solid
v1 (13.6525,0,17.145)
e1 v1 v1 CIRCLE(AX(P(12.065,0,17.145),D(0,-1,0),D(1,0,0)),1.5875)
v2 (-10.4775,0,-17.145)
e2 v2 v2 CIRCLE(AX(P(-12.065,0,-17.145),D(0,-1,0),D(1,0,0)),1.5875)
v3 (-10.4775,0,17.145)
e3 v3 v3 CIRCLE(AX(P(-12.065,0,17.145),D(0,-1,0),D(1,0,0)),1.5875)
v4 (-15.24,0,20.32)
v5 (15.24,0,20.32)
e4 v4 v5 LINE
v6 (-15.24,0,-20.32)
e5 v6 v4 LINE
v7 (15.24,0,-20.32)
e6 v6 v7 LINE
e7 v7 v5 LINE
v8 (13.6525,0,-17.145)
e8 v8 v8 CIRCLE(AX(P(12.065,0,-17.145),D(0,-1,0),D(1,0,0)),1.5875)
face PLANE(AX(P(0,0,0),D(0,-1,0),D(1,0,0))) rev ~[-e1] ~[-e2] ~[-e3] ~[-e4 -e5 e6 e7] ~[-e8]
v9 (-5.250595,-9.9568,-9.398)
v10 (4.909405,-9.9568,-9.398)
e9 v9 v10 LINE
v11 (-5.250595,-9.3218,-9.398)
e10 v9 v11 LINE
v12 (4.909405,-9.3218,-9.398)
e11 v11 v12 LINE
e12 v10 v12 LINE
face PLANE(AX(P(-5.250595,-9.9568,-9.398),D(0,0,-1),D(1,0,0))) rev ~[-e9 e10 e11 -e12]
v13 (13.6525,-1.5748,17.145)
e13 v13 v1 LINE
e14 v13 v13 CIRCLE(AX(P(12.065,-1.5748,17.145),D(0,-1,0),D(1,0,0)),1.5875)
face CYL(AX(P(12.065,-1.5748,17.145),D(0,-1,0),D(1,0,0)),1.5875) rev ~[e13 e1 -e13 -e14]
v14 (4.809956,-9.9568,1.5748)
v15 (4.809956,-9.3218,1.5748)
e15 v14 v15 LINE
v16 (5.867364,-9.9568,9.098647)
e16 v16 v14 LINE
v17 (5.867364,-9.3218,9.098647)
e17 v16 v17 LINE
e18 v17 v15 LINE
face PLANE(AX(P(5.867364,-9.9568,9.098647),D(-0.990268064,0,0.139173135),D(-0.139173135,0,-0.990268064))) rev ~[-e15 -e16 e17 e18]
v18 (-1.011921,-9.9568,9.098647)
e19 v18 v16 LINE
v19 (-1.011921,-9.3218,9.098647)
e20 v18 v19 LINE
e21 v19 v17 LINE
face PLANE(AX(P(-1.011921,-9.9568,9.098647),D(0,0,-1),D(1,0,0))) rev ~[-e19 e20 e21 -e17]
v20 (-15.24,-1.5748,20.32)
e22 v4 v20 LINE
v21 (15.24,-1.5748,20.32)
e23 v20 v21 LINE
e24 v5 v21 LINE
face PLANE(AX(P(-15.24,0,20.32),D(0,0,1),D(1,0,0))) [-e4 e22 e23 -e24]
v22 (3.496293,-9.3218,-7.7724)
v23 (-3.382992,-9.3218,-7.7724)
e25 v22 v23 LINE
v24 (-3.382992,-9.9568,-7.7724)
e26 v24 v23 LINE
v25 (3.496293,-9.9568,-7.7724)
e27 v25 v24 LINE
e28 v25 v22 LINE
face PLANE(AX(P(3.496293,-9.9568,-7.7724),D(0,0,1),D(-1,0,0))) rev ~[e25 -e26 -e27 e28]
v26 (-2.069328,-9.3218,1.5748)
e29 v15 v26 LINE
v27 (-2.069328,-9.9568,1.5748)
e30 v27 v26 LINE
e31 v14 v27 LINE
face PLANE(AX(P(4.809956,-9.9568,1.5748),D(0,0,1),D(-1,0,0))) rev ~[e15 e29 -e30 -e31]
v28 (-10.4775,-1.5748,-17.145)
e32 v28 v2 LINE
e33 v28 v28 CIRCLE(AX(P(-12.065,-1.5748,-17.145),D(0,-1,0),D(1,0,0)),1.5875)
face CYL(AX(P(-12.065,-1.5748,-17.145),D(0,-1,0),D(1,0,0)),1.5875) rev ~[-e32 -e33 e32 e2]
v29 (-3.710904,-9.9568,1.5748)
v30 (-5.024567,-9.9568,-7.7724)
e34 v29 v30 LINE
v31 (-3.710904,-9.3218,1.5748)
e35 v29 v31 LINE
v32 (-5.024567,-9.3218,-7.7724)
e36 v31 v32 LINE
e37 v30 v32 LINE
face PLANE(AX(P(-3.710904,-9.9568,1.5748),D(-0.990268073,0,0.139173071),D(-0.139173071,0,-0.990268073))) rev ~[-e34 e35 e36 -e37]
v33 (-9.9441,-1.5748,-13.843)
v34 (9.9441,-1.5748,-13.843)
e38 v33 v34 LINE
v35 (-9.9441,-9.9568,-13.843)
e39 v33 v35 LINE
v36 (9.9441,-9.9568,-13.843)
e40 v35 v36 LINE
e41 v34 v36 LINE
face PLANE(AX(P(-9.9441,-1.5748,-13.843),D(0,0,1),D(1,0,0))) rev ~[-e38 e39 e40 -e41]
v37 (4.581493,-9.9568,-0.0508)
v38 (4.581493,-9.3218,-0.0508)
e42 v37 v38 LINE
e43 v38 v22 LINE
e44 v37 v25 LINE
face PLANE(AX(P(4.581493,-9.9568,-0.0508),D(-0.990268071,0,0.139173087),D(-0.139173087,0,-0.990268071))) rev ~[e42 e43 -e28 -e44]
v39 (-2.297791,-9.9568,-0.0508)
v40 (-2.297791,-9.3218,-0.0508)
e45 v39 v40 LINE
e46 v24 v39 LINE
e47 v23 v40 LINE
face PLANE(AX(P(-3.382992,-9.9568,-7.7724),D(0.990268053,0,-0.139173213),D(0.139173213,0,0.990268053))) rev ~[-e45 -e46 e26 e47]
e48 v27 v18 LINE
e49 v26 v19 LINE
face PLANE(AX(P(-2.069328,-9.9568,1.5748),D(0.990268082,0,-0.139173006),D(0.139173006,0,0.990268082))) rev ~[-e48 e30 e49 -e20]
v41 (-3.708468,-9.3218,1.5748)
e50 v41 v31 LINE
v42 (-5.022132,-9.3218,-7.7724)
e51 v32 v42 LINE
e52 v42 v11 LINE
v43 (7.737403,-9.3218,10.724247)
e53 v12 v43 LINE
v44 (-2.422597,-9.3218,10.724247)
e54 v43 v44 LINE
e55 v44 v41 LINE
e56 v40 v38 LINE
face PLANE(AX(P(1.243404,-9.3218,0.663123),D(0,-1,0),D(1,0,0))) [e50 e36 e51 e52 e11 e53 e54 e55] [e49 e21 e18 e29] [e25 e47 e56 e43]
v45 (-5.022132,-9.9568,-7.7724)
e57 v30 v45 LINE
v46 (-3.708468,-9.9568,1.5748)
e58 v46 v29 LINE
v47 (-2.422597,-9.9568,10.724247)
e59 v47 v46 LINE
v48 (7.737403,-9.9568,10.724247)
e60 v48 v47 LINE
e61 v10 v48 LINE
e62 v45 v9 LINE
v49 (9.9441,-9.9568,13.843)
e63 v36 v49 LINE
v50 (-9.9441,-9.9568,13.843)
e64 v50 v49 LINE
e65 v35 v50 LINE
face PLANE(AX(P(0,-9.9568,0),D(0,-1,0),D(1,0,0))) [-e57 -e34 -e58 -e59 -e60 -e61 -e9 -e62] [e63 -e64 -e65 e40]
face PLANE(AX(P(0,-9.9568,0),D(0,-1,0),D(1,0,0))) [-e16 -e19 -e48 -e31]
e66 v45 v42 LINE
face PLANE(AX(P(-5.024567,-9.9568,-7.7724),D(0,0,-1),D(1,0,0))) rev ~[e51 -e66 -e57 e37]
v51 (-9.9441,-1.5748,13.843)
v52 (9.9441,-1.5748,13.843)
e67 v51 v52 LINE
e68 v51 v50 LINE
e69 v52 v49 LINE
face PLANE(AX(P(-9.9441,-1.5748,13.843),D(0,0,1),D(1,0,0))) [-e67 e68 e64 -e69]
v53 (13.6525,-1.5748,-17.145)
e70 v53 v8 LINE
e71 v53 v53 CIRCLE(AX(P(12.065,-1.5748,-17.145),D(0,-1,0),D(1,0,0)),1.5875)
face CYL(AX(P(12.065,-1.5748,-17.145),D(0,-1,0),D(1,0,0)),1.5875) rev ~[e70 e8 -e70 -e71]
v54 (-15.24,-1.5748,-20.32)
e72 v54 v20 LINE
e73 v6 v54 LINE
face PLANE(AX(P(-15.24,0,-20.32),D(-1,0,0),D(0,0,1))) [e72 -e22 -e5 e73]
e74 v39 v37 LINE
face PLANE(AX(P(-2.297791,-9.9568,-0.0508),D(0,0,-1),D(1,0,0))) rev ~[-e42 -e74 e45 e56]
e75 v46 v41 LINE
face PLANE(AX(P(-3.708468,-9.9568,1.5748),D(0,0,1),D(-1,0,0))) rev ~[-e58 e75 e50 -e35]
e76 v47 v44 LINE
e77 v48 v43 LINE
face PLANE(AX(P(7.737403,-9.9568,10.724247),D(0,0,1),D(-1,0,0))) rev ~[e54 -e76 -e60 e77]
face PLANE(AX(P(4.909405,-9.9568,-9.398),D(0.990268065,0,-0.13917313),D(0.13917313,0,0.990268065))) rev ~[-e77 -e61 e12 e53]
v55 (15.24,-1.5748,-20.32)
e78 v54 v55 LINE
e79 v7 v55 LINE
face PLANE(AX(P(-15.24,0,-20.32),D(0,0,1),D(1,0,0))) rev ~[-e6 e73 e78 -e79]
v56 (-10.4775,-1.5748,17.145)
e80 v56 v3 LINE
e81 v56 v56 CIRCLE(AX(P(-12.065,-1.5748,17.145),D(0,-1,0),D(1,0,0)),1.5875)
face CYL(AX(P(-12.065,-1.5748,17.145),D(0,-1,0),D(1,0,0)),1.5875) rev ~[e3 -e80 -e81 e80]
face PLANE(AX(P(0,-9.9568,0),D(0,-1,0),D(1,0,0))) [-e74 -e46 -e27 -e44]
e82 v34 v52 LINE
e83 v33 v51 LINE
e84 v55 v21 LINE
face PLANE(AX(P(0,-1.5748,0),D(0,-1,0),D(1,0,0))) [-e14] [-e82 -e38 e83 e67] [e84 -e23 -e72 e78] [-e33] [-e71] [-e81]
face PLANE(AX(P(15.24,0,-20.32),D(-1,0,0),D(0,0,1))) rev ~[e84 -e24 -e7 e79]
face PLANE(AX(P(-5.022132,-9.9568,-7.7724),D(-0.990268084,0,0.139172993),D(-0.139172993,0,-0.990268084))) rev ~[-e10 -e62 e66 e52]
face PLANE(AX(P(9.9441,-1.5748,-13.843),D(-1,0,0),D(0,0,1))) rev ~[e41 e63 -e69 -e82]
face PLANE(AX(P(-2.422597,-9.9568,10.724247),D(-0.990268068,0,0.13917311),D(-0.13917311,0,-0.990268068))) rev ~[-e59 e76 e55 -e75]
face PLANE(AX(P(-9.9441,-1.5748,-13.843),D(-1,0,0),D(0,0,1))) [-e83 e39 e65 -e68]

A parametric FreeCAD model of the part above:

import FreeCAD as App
import Part
import Sketcher
Q = App.Units.Quantity

doc = App.newDocument("Part")
body = doc.addObject("PartDesign::Body", "Body")

sketch1 = body.newObject("Sketcher::SketchObject", "Sketch")
sketch1.AttachmentSupport = (doc.getObject("XZ_Plane"), [""])
sketch1.MapMode = "FlatFace"
sketch1.addGeometry([
    Part.LineSegment(App.Vector(-15, 20, 0), App.Vector(-15, -20, 0)),
    Part.LineSegment(App.Vector(-15, -20, 0), App.Vector(15, -20, 0)),
    Part.LineSegment(App.Vector(15, -20, 0), App.Vector(15, 20, 0)),
    Part.LineSegment(App.Vector(15, 20, 0), App.Vector(-15, 20, 0)),
], False)
sketch1.addConstraint([
    Sketcher.Constraint("Coincident", 0, 2, 1, 1),
    Sketcher.Constraint("Coincident", 1, 2, 2, 1),
    Sketcher.Constraint("Coincident", 2, 2, 3, 1),
    Sketcher.Constraint("Coincident", 3, 2, 0, 1),
    Sketcher.Constraint("Vertical", 0),
    Sketcher.Constraint("Horizontal", 1),
    Sketcher.Constraint("Vertical", 2),
    Sketcher.Constraint("Horizontal", 3),
    Sketcher.Constraint("Symmetric", 0, 2, 2, 2, -1, 1),
    Sketcher.Constraint("DistanceX", 1, 1, 1, 2, Q("1.2 in")),
    Sketcher.Constraint("DistanceY", 0, 2, 0, 1, Q("1.6 in")),
])
pad1 = body.newObject("PartDesign::Pad", "Pad")
pad1.Profile = sketch1
pad1.Length = Q("0.062 in")

sketch2 = body.newObject("Sketcher::SketchObject", "Sketch001")
sketch2.AttachmentSupport = (doc.getObject("XZ_Plane"), [""])
sketch2.MapMode = "FlatFace"
sketch2.AttachmentOffset = App.Placement(App.Vector(0, 0, 0.062 * 25.4), App.Rotation())
sketch2.addGeometry([
    Part.Circle(App.Vector(-12.1, 17.1, 0), App.Vector(0, 0, 1), 1.6),
    Part.Circle(App.Vector(12.1, 17.1, 0), App.Vector(0, 0, 1), 1.6),
    Part.Circle(App.Vector(-12.1, -17.1, 0), App.Vector(0, 0, 1), 1.6),
    Part.Circle(App.Vector(12.1, -17.1, 0), App.Vector(0, 0, 1), 1.6),
], False)
sketch2.addConstraint([
    Sketcher.Constraint("Equal", 0, 1),
    Sketcher.Constraint("Equal", 1, 2),
    Sketcher.Constraint("Equal", 2, 3),
    Sketcher.Constraint("Symmetric", 1, 3, 2, 3, -1, 1),
    Sketcher.Constraint("Symmetric", 0, 3, 3, 3, -1, 1),
    Sketcher.Constraint("Symmetric", 0, 3, 1, 3, -2),
    Sketcher.Constraint("Diameter", 0, Q("0.125 in")),
    Sketcher.Constraint("DistanceX", 0, 3, 1, 3, Q("0.95 in")),
    Sketcher.Constraint("DistanceY", 2, 3, 0, 3, Q("1.35 in")),
])
pocket1 = body.newObject("PartDesign::Pocket", "Pocket")
pocket1.Profile = sketch2
pocket1.Type = "ThroughAll"

sketch3 = body.newObject("Sketcher::SketchObject", "Sketch002")
sketch3.AttachmentSupport = (doc.getObject("XZ_Plane"), [""])
sketch3.MapMode = "FlatFace"
sketch3.AttachmentOffset = App.Placement(App.Vector(0, 0, 0.062 * 25.4), App.Rotation())
sketch3.addGeometry([
    Part.LineSegment(App.Vector(-10, 14, 0), App.Vector(-10, -14, 0)),
    Part.LineSegment(App.Vector(-10, -14, 0), App.Vector(10, -14, 0)),
    Part.LineSegment(App.Vector(10, -14, 0), App.Vector(10, 14, 0)),
    Part.LineSegment(App.Vector(10, 14, 0), App.Vector(-10, 14, 0)),
], False)
sketch3.addConstraint([
    Sketcher.Constraint("Coincident", 0, 2, 1, 1),
    Sketcher.Constraint("Coincident", 1, 2, 2, 1),
    Sketcher.Constraint("Coincident", 2, 2, 3, 1),
    Sketcher.Constraint("Coincident", 3, 2, 0, 1),
    Sketcher.Constraint("Vertical", 0),
    Sketcher.Constraint("Horizontal", 1),
    Sketcher.Constraint("Vertical", 2),
    Sketcher.Constraint("Horizontal", 3),
    Sketcher.Constraint("Symmetric", 0, 2, 2, 2, -1, 1),
    Sketcher.Constraint("DistanceY", 0, 2, 0, 1, Q("1.09 in")),
    Sketcher.Constraint("DistanceX", 1, 1, 1, 2, Q("0.783 in")),
])
pad2 = body.newObject("PartDesign::Pad", "Pad001")
pad2.Profile = sketch3
pad2.Length = Q("0.33 in")

sketch4 = body.newObject("Sketcher::SketchObject", "Sketch003")
sketch4.AttachmentSupport = (doc.getObject("XZ_Plane"), [""])
sketch4.MapMode = "FlatFace"
sketch4.AttachmentOffset = App.Placement(App.Vector(0, 0, 0.392 * 25.4), App.Rotation())
sketch4.addGeometry([
    Part.LineSegment(App.Vector(-5.0221, -7.7724, 0), App.Vector(-5.2506, -9.398, 0)),
    Part.LineSegment(App.Vector(-5.2506, -9.398, 0), App.Vector(4.9094, -9.398, 0)),
    Part.LineSegment(App.Vector(4.9094, -9.398, 0), App.Vector(7.7374, 10.7242, 0)),
    Part.LineSegment(App.Vector(7.7374, 10.7242, 0), App.Vector(-2.4226, 10.7242, 0)),
    Part.LineSegment(App.Vector(-2.4226, 10.7242, 0), App.Vector(-3.7085, 1.5748, 0)),
    Part.LineSegment(App.Vector(-3.7085, 1.5748, 0), App.Vector(-3.7109, 1.5748, 0)),
    Part.LineSegment(App.Vector(-3.7109, 1.5748, 0), App.Vector(-5.0246, -7.7724, 0)),
    Part.LineSegment(App.Vector(-5.0246, -7.7724, 0), App.Vector(-5.0221, -7.7724, 0)),
    Part.LineSegment(App.Vector(-3.383, -7.7724, 0), App.Vector(-2.2978, -0.0508, 0)),
    Part.LineSegment(App.Vector(-2.2978, -0.0508, 0), App.Vector(4.5815, -0.0508, 0)),
    Part.LineSegment(App.Vector(4.5815, -0.0508, 0), App.Vector(3.4963, -7.7724, 0)),
    Part.LineSegment(App.Vector(3.4963, -7.7724, 0), App.Vector(-3.383, -7.7724, 0)),
    Part.LineSegment(App.Vector(5.8674, 9.0986, 0), App.Vector(4.81, 1.5748, 0)),
    Part.LineSegment(App.Vector(4.81, 1.5748, 0), App.Vector(-2.0693, 1.5748, 0)),
    Part.LineSegment(App.Vector(-2.0693, 1.5748, 0), App.Vector(-1.0119, 9.0986, 0)),
    Part.LineSegment(App.Vector(-1.0119, 9.0986, 0), App.Vector(5.8674, 9.0986, 0)),
], False)
sketch4.addConstraint([
    Sketcher.Constraint("Coincident", 0, 2, 1, 1),
    Sketcher.Constraint("Coincident", 1, 2, 2, 1),
    Sketcher.Constraint("Coincident", 2, 2, 3, 1),
    Sketcher.Constraint("Coincident", 3, 2, 4, 1),
    Sketcher.Constraint("Coincident", 4, 2, 5, 1),
    Sketcher.Constraint("Coincident", 5, 2, 6, 1),
    Sketcher.Constraint("Coincident", 6, 2, 7, 1),
    Sketcher.Constraint("Coincident", 7, 2, 0, 1),
    Sketcher.Constraint("Coincident", 8, 2, 9, 1),
    Sketcher.Constraint("Coincident", 9, 2, 10, 1),
    Sketcher.Constraint("Coincident", 10, 2, 11, 1),
    Sketcher.Constraint("Coincident", 11, 2, 8, 1),
    Sketcher.Constraint("Coincident", 12, 2, 13, 1),
    Sketcher.Constraint("Coincident", 13, 2, 14, 1),
    Sketcher.Constraint("Coincident", 14, 2, 15, 1),
    Sketcher.Constraint("Coincident", 15, 2, 12, 1),
    Sketcher.Constraint("Horizontal", 1),
    Sketcher.Constraint("Horizontal", 3),
    Sketcher.Constraint("Horizontal", 5),
    Sketcher.Constraint("Horizontal", 7),
    Sketcher.Constraint("Horizontal", 9),
    Sketcher.Constraint("Horizontal", 11),
    Sketcher.Constraint("Horizontal", 13),
    Sketcher.Constraint("Horizontal", 15),
    Sketcher.Constraint("Parallel", 0, 2),
    Sketcher.Constraint("Parallel", 2, 4),
    Sketcher.Constraint("Parallel", 4, 6),
    Sketcher.Constraint("Parallel", 6, 8),
    Sketcher.Constraint("Parallel", 8, 10),
    Sketcher.Constraint("Parallel", 10, 12),
    Sketcher.Constraint("Parallel", 12, 14),
    Sketcher.Constraint("Horizontal", 7, 2, 10, 2),
    Sketcher.Constraint("Horizontal", 5, 2, 12, 2),
    Sketcher.Constraint("Equal", 1, 3),
    Sketcher.Constraint("Equal", 11, 13),
    Sketcher.Constraint("DistanceX", 1, 1, 1, 2, Q("0.4 in")),
    Sketcher.Constraint("Angle", 0, Q("-97.999994 deg")),
    Sketcher.Constraint("Distance", 2, Q("0.8 in")),
    Sketcher.Constraint("DistanceY", 0, 2, -1, 1, Q("0.37 in")),
    Sketcher.Constraint("DistanceY", -1, 1, 4, 2, Q("0.062 in")),
    Sketcher.Constraint("DistanceY", 6, 2, -1, 1, Q("0.306 in")),
    Sketcher.Constraint("DistanceY", 8, 2, -1, 1, Q("0.002 in")),
    Sketcher.Constraint("DistanceY", 14, 2, 3, 2, Q("0.064 in")),
    Sketcher.Constraint("DistanceX", 6, 2, 4, 2, Q("1.316099 mm")),
    Sketcher.Constraint("DistanceX", 9, 1, 9, 2, Q("6.879284 mm")),
    Sketcher.Constraint("DistanceX", 8, 2, -1, 1, Q("2.297791 mm")),
    Sketcher.Constraint("DistanceX", 13, 2, -1, 1, Q("2.069328 mm")),
    Sketcher.Constraint("DistanceX", 7, 2, 8, 2, Q("2.724341 mm")),
])
pocket2 = body.newObject("PartDesign::Pocket", "Pocket001")
pocket2.Profile = sketch4
pocket2.Length = Q("0.025 in")

doc.recompute()
